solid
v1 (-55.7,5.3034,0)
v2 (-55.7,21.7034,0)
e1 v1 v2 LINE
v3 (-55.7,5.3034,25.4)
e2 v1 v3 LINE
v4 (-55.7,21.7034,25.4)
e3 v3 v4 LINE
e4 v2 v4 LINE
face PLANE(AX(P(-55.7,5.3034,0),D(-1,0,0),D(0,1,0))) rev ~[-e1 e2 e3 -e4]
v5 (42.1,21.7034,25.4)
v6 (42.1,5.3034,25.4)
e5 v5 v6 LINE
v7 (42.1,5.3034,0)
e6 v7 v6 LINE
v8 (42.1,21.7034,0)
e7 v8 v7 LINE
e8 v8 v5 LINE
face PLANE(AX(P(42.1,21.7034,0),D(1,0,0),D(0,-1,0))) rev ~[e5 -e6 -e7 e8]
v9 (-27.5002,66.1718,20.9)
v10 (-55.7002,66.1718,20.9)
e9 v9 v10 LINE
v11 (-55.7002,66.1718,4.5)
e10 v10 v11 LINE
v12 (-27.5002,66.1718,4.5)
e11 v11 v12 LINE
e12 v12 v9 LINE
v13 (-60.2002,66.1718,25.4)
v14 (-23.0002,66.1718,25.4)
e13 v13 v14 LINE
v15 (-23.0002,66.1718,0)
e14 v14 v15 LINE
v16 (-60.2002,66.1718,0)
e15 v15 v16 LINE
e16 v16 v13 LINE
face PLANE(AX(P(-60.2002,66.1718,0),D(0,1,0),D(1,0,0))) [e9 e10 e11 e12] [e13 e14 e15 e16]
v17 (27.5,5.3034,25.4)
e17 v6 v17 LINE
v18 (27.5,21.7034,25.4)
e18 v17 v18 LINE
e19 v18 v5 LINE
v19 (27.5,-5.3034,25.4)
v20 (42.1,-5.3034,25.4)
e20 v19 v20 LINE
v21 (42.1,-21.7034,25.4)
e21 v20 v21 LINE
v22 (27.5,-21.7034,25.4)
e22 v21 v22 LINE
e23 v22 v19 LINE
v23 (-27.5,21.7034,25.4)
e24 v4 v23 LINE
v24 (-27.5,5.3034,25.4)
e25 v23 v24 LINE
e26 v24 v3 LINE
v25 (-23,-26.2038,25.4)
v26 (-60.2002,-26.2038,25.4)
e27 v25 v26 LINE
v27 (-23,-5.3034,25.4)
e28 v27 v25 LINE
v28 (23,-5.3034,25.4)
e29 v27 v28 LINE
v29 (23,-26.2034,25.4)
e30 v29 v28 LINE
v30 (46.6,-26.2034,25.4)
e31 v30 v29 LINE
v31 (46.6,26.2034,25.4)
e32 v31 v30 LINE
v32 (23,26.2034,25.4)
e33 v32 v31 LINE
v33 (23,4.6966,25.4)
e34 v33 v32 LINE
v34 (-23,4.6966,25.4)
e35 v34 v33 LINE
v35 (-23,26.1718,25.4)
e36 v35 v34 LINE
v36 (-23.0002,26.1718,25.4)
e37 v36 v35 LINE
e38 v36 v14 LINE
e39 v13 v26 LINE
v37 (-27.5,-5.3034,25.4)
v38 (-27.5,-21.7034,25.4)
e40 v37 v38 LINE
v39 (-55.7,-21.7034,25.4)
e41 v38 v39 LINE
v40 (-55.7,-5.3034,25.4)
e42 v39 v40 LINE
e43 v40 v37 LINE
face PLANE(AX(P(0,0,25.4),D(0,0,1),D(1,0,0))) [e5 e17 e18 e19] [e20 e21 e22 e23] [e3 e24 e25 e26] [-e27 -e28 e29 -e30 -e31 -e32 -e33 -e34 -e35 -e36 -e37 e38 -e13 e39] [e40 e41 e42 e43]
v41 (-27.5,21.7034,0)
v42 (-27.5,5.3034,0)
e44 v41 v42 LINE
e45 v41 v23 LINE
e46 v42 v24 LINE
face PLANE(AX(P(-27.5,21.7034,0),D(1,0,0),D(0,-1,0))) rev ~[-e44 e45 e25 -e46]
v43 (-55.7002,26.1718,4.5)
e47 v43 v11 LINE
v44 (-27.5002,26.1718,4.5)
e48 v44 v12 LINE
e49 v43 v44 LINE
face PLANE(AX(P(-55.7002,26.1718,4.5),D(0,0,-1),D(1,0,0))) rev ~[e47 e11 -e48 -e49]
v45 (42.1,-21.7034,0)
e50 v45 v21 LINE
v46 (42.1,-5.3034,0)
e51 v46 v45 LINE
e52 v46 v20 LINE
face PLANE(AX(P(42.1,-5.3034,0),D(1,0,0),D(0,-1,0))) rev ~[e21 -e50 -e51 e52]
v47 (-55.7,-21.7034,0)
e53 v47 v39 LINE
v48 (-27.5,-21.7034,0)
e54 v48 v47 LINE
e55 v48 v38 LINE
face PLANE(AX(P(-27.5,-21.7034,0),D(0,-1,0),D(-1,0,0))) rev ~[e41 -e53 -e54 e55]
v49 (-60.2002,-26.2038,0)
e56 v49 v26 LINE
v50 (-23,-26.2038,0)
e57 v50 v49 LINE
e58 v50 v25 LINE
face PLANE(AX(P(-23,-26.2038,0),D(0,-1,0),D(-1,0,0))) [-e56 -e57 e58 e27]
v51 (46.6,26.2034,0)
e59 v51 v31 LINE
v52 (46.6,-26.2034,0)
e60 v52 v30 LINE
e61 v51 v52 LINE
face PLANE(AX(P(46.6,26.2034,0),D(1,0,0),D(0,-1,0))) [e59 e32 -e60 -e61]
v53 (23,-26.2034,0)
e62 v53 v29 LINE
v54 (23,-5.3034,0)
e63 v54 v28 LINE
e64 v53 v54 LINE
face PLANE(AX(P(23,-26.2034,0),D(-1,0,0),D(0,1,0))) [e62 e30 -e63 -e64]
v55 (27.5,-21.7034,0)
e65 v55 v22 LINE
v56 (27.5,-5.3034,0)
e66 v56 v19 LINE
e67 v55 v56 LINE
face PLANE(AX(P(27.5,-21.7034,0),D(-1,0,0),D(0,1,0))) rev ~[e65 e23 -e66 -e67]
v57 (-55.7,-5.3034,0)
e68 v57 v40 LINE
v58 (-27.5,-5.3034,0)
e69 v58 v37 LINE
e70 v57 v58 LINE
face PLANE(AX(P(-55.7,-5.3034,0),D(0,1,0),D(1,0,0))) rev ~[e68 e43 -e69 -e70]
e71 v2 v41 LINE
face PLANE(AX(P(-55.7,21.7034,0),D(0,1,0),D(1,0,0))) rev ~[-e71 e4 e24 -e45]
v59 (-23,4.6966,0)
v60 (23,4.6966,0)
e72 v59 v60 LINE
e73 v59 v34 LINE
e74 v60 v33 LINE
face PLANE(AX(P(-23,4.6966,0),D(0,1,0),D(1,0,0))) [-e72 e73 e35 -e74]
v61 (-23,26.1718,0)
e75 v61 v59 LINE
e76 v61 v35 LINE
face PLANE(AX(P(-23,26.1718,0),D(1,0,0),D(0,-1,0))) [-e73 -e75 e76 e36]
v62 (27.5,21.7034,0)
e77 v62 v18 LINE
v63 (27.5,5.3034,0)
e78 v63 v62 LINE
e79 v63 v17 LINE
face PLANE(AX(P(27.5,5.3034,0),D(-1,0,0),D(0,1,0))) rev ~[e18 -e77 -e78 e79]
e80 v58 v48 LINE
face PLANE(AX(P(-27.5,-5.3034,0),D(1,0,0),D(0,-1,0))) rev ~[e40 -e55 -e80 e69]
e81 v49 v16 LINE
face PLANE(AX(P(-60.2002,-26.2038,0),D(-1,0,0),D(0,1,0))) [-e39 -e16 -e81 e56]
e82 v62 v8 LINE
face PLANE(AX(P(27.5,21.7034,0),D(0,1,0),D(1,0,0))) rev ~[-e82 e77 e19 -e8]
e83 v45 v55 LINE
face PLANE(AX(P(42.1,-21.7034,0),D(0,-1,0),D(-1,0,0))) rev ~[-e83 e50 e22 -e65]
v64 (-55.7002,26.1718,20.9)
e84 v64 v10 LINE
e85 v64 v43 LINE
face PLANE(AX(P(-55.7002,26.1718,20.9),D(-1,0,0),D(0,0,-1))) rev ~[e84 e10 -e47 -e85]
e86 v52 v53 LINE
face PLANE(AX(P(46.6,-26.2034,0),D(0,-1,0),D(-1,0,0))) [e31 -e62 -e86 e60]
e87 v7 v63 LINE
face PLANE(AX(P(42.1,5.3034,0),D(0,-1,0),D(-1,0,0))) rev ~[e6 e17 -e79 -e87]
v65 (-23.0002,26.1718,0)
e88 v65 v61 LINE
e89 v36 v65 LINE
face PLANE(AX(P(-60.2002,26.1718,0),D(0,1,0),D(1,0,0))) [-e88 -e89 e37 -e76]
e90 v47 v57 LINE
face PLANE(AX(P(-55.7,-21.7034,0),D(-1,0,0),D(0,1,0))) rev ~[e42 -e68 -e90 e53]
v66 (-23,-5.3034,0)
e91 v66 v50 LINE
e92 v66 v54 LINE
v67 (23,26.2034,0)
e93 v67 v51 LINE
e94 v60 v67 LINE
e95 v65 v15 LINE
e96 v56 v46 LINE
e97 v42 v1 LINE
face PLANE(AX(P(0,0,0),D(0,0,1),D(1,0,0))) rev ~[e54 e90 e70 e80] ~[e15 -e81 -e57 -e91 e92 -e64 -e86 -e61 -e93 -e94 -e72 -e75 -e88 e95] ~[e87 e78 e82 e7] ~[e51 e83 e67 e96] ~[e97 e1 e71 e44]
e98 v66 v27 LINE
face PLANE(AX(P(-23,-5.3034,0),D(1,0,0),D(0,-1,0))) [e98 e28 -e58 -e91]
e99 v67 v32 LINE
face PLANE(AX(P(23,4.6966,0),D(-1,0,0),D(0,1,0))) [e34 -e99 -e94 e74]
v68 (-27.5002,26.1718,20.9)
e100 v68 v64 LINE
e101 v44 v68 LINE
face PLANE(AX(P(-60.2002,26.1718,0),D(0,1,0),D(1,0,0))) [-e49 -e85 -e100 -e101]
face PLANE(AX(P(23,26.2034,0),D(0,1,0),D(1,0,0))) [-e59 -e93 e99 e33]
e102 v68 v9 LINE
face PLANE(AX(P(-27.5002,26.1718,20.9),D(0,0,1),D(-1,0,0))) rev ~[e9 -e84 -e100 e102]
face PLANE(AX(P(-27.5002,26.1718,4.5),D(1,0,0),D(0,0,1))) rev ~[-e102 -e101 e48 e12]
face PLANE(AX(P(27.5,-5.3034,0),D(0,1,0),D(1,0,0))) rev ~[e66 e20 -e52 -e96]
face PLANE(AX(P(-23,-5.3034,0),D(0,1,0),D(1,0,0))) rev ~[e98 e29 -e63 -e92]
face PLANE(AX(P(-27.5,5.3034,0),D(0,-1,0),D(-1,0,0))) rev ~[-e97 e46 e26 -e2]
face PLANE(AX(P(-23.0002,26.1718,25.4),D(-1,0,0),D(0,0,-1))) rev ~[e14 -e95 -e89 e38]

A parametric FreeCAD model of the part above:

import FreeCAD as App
import Part
import Sketcher
from FreeCAD import Vector


def add_polygon(sketch, points):
    """Adds a closed chain of lines whose ends are joined by coincident constraints."""
    first, n = sketch.GeometryCount, len(points)
    for a, b in zip(points, points[1:] + points[:1]):
        sketch.addGeometry(Part.LineSegment(App.Vector(*a, 0), App.Vector(*b, 0)), False)
    for i in range(n):
        sketch.addConstraint(Sketcher.Constraint("Coincident", first + i, 2, first + (i + 1) % n, 1))

doc = App.newDocument("Part")
body = doc.addObject("PartDesign::Body", "Body")

# Sketch on XY plane
sketch1 = doc.addObject("Sketcher::SketchObject", "Sketch")
body.addObject(sketch1)
sketch1.AttachmentSupport = (doc.XY_Plane, [""])
sketch1.MapMode = "FlatFace"
add_polygon(sketch1, [(-23, 26), (-60, 26), (-60, -26), (-23, -26), (-23, -5), (23, -5), (23, -26), (47, -26), (47, 26), (23, 26), (23, 5), (-23, 5)])  # lines 0-11
add_polygon(sketch1, [(-56, -22), (-56, -5), (-28, -5), (-28, -22)])  # lines 12-15
add_polygon(sketch1, [(28, -22), (28, -5), (42, -5), (42, -22)])  # lines 16-19
add_polygon(sketch1, [(-56, 5), (-56, 22), (-28, 22), (-28, 5)])  # lines 20-23
add_polygon(sketch1, [(28, 5), (28, 22), (42, 22), (42, 5)])  # lines 24-27
sketch1.addConstraint(Sketcher.Constraint("Horizontal", 0))
sketch1.addConstraint(Sketcher.Constraint("Vertical", 1))
sketch1.addConstraint(Sketcher.Constraint("Horizontal", 2))
sketch1.addConstraint(Sketcher.Constraint("Vertical", 3))
sketch1.addConstraint(Sketcher.Constraint("Horizontal", 4))
sketch1.addConstraint(Sketcher.Constraint("Vertical", 5))
sketch1.addConstraint(Sketcher.Constraint("Horizontal", 6))
sketch1.addConstraint(Sketcher.Constraint("Vertical", 7))
sketch1.addConstraint(Sketcher.Constraint("Horizontal", 8))
sketch1.addConstraint(Sketcher.Constraint("Vertical", 9))
sketch1.addConstraint(Sketcher.Constraint("Horizontal", 10))
sketch1.addConstraint(Sketcher.Constraint("Vertical", 11))
sketch1.addConstraint(Sketcher.Constraint("Vertical", 12))
sketch1.addConstraint(Sketcher.Constraint("Horizontal", 13))
sketch1.addConstraint(Sketcher.Constraint("Vertical", 14))
sketch1.addConstraint(Sketcher.Constraint("Horizontal", 15))
sketch1.addConstraint(Sketcher.Constraint("Vertical", 16))
sketch1.addConstraint(Sketcher.Constraint("Horizontal", 17))
sketch1.addConstraint(Sketcher.Constraint("Vertical", 18))
sketch1.addConstraint(Sketcher.Constraint("Horizontal", 19))
sketch1.addConstraint(Sketcher.Constraint("Vertical", 20))
sketch1.addConstraint(Sketcher.Constraint("Horizontal", 21))
sketch1.addConstraint(Sketcher.Constraint("Vertical", 22))
sketch1.addConstraint(Sketcher.Constraint("Horizontal", 23))
sketch1.addConstraint(Sketcher.Constraint("Vertical", 24))
sketch1.addConstraint(Sketcher.Constraint("Horizontal", 25))
sketch1.addConstraint(Sketcher.Constraint("Vertical", 26))
sketch1.addConstraint(Sketcher.Constraint("Horizontal", 27))
sketch1.addConstraint(Sketcher.Constraint("Symmetric", 19, 2, 21, 2, -1, 1))
sketch1.addConstraint(Sketcher.Constraint("Symmetric", 14, 2, 24, 2, -1, 1))
sketch1.addConstraint(Sketcher.Constraint("Symmetric", 13, 2, 16, 2, -2))
sketch1.addConstraint(Sketcher.Constraint("Symmetric", 5, 2, 8, 2, -1))
sketch1.addConstraint(Sketcher.Constraint("Symmetric", 15, 2, 20, 2, -1))
sketch1.addConstraint(Sketcher.Constraint("Symmetric", 17, 2, 26, 2, -1))
sketch1.addConstraint(Sketcher.Constraint("Horizontal", 4, 2, 12, 2))
sketch1.addConstraint(Sketcher.Constraint("Horizontal", 23, 2, 26, 2))
sketch1.addConstraint(Sketcher.Constraint("Vertical", 3, 2, 10, 2))
sketch1.addConstraint(Sketcher.Constraint("DistanceX", 4, 1, 4, 2, 46.0))
sketch1.addConstraint(Sketcher.Constraint("DistanceX", 6, 1, 6, 2, 23.6))
sketch1.addConstraint(Sketcher.Constraint("DistanceX", 13, 1, 13, 2, 28.2))
sketch1.addConstraint(Sketcher.Constraint("DistanceX", 17, 1, 17, 2, 14.6))
sketch1.addConstraint(Sketcher.Constraint("DistanceY", 5, 2, 5, 1, 20.9))
sketch1.addConstraint(Sketcher.Constraint("DistanceY", 12, 1, 12, 2, 16.4))
sketch1.addConstraint(Sketcher.Constraint("DistanceX", 2, 2, -1, 1, 23.0))
sketch1.addConstraint(Sketcher.Constraint("DistanceY", 4, 2, 9, 2, 10.0))
sketch1.addConstraint(Sketcher.Constraint("DistanceX", 12, 2, -1, 1, 55.7))
sketch1.addConstraint(Sketcher.Constraint("DistanceX", 0, 2, 0, 1, 37.2002))
sketch1.addConstraint(Sketcher.Constraint("DistanceY", 1, 2, 1, 1, 52.3756))
sketch1.addConstraint(Sketcher.Constraint("DistanceY", 3, 1, 3, 2, 20.9004))
sketch1.addConstraint(Sketcher.Constraint("DistanceY", 7, 1, 7, 2, 52.4068))
pad1 = doc.addObject("PartDesign::Pad", "Pad")
body.addObject(pad1)
pad1.Profile = sketch1
pad1.Length = 25.4

# Sketch on XZ plane
sketch2 = doc.addObject("Sketcher::SketchObject", "Sketch001")
body.addObject(sketch2)
sketch2.AttachmentSupport = (doc.XZ_Plane, [""])
sketch2.MapMode = "FlatFace"
sketch2.AttachmentOffset = App.Placement(Vector(0, 0, -26.1718), App.Rotation())
add_polygon(sketch2, [(-23, 25), (-23, 0), (-60, 0), (-60, 25)])  # lines 0-3
add_polygon(sketch2, [(-56, 21), (-56, 4), (-28, 4), (-28, 21)])  # lines 4-7
sketch2.addConstraint(Sketcher.Constraint("Vertical", 0))
sketch2.addConstraint(Sketcher.Constraint("Horizontal", 1))
sketch2.addConstraint(Sketcher.Constraint("Vertical", 2))
sketch2.addConstraint(Sketcher.Constraint("Horizontal", 3))
sketch2.addConstraint(Sketcher.Constraint("Vertical", 4))
sketch2.addConstraint(Sketcher.Constraint("Horizontal", 5))
sketch2.addConstraint(Sketcher.Constraint("Vertical", 6))
sketch2.addConstraint(Sketcher.Constraint("Horizontal", 7))
sketch2.addConstraint(Sketcher.Constraint("PointOnObject", 0, 2, -1))
sketch2.addConstraint(Sketcher.Constraint("DistanceY", -1, 1, 4, 2, 4.5))
sketch2.addConstraint(Sketcher.Constraint("DistanceX", 1, 2, 4, 2, 4.5))
sketch2.addConstraint(Sketcher.Constraint("DistanceX", 5, 2, 0, 2, 4.5))
sketch2.addConstraint(Sketcher.Constraint("DistanceY", 6, 2, 3, 2, 4.5))
sketch2.addConstraint(Sketcher.Constraint("DistanceX", 1, 2, 1, 1, 37.2))
sketch2.addConstraint(Sketcher.Constraint("DistanceY", 0, 2, 0, 1, 25.4))
sketch2.addConstraint(Sketcher.Constraint("DistanceX", 0, 2, -1, 1, 23.0002))
pad2 = doc.addObject("PartDesign::Pad", "Pad001")
body.addObject(pad2)
pad2.Profile = sketch2
pad2.Length = 40
pad2.Reversed = True

doc.recompute()
